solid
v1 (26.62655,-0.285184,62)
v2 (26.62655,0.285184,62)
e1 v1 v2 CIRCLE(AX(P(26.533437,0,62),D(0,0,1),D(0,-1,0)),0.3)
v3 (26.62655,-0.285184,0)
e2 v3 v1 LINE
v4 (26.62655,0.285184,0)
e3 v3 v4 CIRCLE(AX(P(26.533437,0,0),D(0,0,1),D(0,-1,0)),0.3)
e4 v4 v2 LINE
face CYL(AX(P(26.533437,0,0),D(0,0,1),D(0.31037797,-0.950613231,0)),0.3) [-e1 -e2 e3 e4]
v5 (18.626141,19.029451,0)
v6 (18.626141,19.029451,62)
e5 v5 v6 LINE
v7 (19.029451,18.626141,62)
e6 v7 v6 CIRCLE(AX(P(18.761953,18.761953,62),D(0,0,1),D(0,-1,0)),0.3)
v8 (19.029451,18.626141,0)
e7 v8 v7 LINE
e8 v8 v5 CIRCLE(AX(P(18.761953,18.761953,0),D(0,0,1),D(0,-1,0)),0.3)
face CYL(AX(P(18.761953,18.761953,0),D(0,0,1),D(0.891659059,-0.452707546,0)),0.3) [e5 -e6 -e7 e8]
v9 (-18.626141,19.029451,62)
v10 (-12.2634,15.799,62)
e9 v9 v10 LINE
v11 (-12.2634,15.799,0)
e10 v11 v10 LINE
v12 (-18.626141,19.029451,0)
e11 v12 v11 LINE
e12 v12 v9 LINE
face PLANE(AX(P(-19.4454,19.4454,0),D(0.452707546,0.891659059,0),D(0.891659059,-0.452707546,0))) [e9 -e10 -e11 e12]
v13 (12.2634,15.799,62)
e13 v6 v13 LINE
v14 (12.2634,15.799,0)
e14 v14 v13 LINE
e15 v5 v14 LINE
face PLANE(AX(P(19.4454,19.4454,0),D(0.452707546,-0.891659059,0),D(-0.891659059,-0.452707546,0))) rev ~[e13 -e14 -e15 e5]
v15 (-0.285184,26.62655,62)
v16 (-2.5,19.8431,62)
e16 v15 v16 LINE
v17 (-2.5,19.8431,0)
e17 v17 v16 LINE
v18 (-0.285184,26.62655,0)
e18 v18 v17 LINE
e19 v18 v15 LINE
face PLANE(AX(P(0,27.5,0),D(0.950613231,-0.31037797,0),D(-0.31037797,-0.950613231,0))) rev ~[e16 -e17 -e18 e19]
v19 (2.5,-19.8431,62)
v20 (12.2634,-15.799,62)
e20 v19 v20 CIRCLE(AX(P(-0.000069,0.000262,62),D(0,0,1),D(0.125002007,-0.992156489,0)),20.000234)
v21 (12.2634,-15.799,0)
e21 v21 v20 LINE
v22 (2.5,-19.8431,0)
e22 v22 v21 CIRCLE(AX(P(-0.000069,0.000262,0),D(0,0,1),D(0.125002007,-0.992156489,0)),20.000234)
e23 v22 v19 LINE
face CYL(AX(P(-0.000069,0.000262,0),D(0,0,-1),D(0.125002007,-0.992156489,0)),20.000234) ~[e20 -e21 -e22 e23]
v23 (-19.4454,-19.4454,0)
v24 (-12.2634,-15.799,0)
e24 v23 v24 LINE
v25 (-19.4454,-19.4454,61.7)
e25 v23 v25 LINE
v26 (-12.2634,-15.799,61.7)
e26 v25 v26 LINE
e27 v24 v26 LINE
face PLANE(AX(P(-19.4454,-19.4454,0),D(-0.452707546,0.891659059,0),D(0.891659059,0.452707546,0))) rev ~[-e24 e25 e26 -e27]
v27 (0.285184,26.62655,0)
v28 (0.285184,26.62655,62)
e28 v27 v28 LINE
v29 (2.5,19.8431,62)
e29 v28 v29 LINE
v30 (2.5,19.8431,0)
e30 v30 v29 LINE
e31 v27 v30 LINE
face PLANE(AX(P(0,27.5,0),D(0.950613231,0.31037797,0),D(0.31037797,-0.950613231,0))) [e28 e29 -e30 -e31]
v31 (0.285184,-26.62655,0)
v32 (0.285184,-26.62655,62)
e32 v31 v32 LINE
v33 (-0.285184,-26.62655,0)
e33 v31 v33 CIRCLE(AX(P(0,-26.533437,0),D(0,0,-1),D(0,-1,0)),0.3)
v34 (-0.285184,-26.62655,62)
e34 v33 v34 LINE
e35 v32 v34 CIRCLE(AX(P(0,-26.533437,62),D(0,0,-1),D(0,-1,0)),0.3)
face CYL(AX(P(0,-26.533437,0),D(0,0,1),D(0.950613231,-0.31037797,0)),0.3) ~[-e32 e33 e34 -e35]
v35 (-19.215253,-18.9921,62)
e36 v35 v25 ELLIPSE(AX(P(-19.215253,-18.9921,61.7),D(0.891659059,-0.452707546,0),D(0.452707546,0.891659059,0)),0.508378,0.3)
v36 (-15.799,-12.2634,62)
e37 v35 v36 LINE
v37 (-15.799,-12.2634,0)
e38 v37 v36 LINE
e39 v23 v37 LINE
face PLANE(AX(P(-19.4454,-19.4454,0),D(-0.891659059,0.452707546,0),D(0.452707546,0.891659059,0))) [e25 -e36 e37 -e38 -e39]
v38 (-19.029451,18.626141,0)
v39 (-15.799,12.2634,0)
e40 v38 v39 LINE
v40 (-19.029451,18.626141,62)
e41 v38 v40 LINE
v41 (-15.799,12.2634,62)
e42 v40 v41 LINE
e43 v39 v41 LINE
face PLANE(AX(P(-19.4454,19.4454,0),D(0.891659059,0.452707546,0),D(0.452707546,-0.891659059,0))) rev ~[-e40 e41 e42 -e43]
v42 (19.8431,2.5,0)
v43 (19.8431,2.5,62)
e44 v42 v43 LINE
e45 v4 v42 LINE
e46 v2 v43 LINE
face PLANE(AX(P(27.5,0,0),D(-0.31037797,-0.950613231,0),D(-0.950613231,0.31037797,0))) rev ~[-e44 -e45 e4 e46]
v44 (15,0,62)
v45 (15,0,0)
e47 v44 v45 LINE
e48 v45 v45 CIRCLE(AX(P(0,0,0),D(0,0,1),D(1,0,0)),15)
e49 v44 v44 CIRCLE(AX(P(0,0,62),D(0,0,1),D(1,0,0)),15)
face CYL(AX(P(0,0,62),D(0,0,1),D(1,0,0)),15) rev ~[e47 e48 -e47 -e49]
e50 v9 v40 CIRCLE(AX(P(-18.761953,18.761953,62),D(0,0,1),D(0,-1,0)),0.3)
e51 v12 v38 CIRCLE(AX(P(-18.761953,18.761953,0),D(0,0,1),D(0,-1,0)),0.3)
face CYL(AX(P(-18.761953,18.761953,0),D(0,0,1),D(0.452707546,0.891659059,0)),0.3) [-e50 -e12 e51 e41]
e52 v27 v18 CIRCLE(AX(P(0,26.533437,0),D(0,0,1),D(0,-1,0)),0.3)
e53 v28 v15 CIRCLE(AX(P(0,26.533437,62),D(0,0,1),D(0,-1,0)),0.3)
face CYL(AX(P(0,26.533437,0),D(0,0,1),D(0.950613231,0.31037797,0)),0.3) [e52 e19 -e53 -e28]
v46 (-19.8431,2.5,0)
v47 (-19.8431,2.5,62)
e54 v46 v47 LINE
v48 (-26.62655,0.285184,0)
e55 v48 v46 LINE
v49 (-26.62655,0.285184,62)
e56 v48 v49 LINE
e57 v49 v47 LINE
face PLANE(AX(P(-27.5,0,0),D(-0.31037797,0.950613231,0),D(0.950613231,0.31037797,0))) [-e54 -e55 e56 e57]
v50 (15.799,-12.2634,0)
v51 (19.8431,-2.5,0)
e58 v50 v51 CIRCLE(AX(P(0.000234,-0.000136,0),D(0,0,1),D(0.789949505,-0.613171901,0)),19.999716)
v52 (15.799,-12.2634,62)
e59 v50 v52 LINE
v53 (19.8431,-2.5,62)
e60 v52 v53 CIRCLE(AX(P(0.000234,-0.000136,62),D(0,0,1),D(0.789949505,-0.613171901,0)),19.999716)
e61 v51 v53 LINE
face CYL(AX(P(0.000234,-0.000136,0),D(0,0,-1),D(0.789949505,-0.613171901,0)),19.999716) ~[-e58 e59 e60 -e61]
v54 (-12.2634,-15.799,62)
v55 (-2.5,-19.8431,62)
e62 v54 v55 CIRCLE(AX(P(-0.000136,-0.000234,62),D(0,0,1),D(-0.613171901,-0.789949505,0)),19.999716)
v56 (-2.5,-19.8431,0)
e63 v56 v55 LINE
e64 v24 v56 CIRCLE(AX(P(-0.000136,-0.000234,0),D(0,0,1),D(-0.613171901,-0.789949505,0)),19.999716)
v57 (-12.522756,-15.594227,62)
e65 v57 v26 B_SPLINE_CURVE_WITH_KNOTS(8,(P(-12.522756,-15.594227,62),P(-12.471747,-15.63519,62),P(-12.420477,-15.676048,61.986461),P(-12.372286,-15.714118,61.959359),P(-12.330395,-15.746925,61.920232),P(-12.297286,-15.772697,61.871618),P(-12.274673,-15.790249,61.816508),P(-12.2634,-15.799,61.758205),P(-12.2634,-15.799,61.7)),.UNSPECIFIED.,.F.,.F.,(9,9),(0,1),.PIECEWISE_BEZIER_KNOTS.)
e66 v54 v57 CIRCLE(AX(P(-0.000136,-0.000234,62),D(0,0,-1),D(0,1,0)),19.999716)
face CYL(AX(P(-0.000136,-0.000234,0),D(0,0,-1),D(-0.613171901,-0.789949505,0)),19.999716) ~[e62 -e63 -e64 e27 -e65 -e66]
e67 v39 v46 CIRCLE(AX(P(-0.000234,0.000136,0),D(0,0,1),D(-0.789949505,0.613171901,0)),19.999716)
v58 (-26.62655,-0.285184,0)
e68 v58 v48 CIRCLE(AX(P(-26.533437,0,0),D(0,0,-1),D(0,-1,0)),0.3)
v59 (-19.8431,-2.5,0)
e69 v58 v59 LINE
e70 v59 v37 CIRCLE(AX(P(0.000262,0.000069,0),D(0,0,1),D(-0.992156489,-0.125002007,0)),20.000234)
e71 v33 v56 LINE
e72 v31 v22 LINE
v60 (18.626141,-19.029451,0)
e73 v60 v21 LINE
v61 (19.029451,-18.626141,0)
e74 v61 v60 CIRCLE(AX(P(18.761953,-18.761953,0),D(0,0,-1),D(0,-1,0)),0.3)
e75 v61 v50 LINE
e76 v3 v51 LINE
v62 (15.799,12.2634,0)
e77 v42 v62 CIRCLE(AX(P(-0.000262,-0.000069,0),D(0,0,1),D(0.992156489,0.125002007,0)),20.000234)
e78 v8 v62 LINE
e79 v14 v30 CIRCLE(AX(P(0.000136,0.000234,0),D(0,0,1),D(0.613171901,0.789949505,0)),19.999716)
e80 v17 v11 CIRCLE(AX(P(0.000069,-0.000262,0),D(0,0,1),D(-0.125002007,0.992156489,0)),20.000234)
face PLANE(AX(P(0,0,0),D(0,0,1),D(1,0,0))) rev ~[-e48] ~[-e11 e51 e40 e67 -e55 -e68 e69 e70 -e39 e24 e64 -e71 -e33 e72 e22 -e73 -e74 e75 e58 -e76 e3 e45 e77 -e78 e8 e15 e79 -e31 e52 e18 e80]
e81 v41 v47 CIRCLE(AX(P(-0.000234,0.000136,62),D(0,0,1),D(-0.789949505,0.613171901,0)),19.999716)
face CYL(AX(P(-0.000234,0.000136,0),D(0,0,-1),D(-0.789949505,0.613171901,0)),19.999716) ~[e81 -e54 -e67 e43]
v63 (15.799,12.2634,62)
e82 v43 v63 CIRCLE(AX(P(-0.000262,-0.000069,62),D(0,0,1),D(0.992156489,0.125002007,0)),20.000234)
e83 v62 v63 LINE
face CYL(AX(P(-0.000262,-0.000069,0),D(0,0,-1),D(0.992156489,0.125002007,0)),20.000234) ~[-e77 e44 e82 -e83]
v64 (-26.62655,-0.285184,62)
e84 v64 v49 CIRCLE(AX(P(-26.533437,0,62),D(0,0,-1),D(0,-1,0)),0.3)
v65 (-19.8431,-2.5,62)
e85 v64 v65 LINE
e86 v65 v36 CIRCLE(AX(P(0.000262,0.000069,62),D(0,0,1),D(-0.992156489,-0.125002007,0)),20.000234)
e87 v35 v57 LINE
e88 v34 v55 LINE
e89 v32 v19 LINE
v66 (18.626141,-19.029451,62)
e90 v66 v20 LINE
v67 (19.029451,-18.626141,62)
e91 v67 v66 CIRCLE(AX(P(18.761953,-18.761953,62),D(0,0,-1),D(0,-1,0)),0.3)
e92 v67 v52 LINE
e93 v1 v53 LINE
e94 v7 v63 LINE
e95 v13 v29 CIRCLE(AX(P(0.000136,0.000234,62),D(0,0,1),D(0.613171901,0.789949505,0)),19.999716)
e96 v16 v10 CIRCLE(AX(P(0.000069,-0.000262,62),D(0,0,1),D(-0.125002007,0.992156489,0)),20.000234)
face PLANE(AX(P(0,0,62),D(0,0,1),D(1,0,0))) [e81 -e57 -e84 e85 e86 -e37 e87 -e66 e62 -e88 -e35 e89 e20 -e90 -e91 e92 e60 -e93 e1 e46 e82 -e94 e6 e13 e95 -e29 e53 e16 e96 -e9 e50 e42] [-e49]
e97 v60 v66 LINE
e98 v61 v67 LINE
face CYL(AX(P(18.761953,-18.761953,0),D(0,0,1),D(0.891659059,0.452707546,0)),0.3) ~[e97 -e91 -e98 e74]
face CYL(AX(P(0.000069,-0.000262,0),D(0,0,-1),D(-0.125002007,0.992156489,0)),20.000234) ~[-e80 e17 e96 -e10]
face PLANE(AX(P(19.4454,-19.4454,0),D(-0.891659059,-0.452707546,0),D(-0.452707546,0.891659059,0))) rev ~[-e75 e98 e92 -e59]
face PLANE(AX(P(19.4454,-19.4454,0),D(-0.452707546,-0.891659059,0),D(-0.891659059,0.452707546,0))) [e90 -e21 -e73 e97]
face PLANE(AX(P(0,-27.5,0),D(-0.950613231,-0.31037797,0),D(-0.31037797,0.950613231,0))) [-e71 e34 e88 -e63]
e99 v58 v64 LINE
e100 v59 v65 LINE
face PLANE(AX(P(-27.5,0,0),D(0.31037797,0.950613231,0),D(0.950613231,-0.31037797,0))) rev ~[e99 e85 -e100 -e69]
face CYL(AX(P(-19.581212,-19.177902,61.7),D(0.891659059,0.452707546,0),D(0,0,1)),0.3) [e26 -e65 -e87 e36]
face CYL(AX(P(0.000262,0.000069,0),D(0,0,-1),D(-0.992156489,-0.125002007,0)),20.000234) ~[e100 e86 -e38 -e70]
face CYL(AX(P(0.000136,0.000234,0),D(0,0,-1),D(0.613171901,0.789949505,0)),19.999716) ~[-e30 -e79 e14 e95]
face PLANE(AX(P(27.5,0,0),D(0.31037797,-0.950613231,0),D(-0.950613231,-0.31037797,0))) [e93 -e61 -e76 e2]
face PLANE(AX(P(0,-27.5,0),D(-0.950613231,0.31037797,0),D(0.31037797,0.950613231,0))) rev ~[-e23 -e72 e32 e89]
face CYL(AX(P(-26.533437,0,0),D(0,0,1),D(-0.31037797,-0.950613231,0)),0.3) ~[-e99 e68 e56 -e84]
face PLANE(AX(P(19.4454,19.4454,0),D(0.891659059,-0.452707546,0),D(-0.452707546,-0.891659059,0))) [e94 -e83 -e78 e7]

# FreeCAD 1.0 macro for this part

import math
import FreeCAD as App
import Part
import Sketcher

V = App.Vector


def edges_at(feature, points):
    """Names of the edges that pass closest to the given points."""
    edges = feature.Shape.Edges
    near = lambda p: min(range(len(edges)), key=lambda i: edges[i].distToShape(Part.Vertex(*p))[0])
    return sorted({f"Edge{near(p) + 1}" for p in points})

doc = App.newDocument("Part")
params = doc.addObject("Spreadsheet::Sheet", "Params")
for row, (alias, value) in enumerate([
    ("sketch1_radius", "20 mm"),
    ("pad1_length", "62 mm"),
    ("sketch2_diameter", "30 mm"),
    ("fillet_radius", "0.3 mm"),
], start=1):
    params.set(f"A{row}", alias)
    params.set(f"B{row}", "=" + value)
    params.setAlias(f"B{row}", alias)

body = doc.addObject("PartDesign::Body", "Body")

# Sketch on XY plane
sketch1 = body.newObject("Sketcher::SketchObject", "Sketch")
sketch1.AttachmentSupport = (doc.getObject("XY_Plane"), [""])
sketch1.MapMode = "FlatFace"
sketch1.addGeometry(Part.LineSegment(V(19.8431, -2.5, 0), V(27.5, 0, 0)), False)
sketch1.addGeometry(Part.LineSegment(V(27.5, 0, 0), V(19.8431, 2.5, 0)), False)
sketch1.addGeometry(Part.ArcOfCircle(Part.Circle(V(0, 0, 0), V(0, 0, 1), 19.999985), math.radians(7.180768), math.radians(37.819104)), False)
sketch1.addGeometry(Part.LineSegment(V(15.799, 12.2634, 0), V(19.4454, 19.4454, 0)), False)
sketch1.addGeometry(Part.LineSegment(V(19.4454, 19.4454, 0), V(12.2634, 15.799, 0)), False)
sketch1.addGeometry(Part.ArcOfCircle(Part.Circle(V(0, 0, 0), V(0, 0, 1), 19.999965), math.radians(52.180896), math.radians(82.819232)), False)
sketch1.addGeometry(Part.LineSegment(V(2.5, 19.8431, 0), V(0, 27.5, 0)), False)
sketch1.addGeometry(Part.LineSegment(V(0, 27.5, 0), V(-2.5, 19.8431, 0)), False)
sketch1.addGeometry(Part.ArcOfCircle(Part.Circle(V(0, 0, 0), V(0, 0, 1), 19.999985), math.radians(97.180768), math.radians(127.819104)), False)
sketch1.addGeometry(Part.LineSegment(V(-12.2634, 15.799, 0), V(-19.4454, 19.4454, 0)), False)
sketch1.addGeometry(Part.LineSegment(V(-19.4454, 19.4454, 0), V(-15.799, 12.2634, 0)), False)
sketch1.addGeometry(Part.ArcOfCircle(Part.Circle(V(0, 0, 0), V(0, 0, 1), 19.999965), math.radians(142.180896), math.radians(172.819232)), False)
sketch1.addGeometry(Part.LineSegment(V(-19.8431, 2.5, 0), V(-27.5, 0, 0)), False)
sketch1.addGeometry(Part.LineSegment(V(-27.5, 0, 0), V(-19.8431, -2.5, 0)), False)
sketch1.addGeometry(Part.ArcOfCircle(Part.Circle(V(0, 0, 0), V(0, 0, 1), 19.999985), math.radians(-172.819232), math.radians(-142.180896)), False)
sketch1.addGeometry(Part.LineSegment(V(-15.799, -12.2634, 0), V(-19.4454, -19.4454, 0)), False)
sketch1.addGeometry(Part.LineSegment(V(-19.4454, -19.4454, 0), V(-12.2634, -15.799, 0)), False)
sketch1.addGeometry(Part.ArcOfCircle(Part.Circle(V(0, 0, 0), V(0, 0, 1), 19.999965), math.radians(-127.819104), math.radians(-97.180768)), False)
sketch1.addGeometry(Part.LineSegment(V(-2.5, -19.8431, 0), V(0, -27.5, 0)), False)
sketch1.addGeometry(Part.LineSegment(V(0, -27.5, 0), V(2.5, -19.8431, 0)), False)
sketch1.addGeometry(Part.ArcOfCircle(Part.Circle(V(0, 0, 0), V(0, 0, 1), 19.999985), math.radians(-82.819232), math.radians(-52.180896)), False)
sketch1.addGeometry(Part.LineSegment(V(12.2634, -15.799, 0), V(19.4454, -19.4454, 0)), False)
sketch1.addGeometry(Part.LineSegment(V(19.4454, -19.4454, 0), V(15.799, -12.2634, 0)), False)
sketch1.addGeometry(Part.ArcOfCircle(Part.Circle(V(0, 0, 0), V(0, 0, 1), 19.999965), math.radians(-37.819104), math.radians(-7.180768)), False)
sketch1.addConstraint(Sketcher.Constraint("Coincident", 0, 2, 1, 1))
sketch1.addConstraint(Sketcher.Constraint("Coincident", 1, 2, 2, 1))
sketch1.addConstraint(Sketcher.Constraint("Coincident", 2, 2, 3, 1))
sketch1.addConstraint(Sketcher.Constraint("Coincident", 3, 2, 4, 1))
sketch1.addConstraint(Sketcher.Constraint("Coincident", 4, 2, 5, 1))
sketch1.addConstraint(Sketcher.Constraint("Coincident", 5, 2, 6, 1))
sketch1.addConstraint(Sketcher.Constraint("Coincident", 6, 2, 7, 1))
sketch1.addConstraint(Sketcher.Constraint("Coincident", 7, 2, 8, 1))
sketch1.addConstraint(Sketcher.Constraint("Coincident", 8, 2, 9, 1))
sketch1.addConstraint(Sketcher.Constraint("Coincident", 9, 2, 10, 1))
sketch1.addConstraint(Sketcher.Constraint("Coincident", 10, 2, 11, 1))
sketch1.addConstraint(Sketcher.Constraint("Coincident", 11, 2, 12, 1))
sketch1.addConstraint(Sketcher.Constraint("Coincident", 12, 2, 13, 1))
sketch1.addConstraint(Sketcher.Constraint("Coincident", 13, 2, 14, 1))
sketch1.addConstraint(Sketcher.Constraint("Coincident", 14, 2, 15, 1))
sketch1.addConstraint(Sketcher.Constraint("Coincident", 15, 2, 16, 1))
sketch1.addConstraint(Sketcher.Constraint("Coincident", 16, 2, 17, 1))
sketch1.addConstraint(Sketcher.Constraint("Coincident", 17, 2, 18, 1))
sketch1.addConstraint(Sketcher.Constraint("Coincident", 18, 2, 19, 1))
sketch1.addConstraint(Sketcher.Constraint("Coincident", 19, 2, 20, 1))
sketch1.addConstraint(Sketcher.Constraint("Coincident", 20, 2, 21, 1))
sketch1.addConstraint(Sketcher.Constraint("Coincident", 21, 2, 22, 1))
sketch1.addConstraint(Sketcher.Constraint("Coincident", 22, 2, 23, 1))
sketch1.addConstraint(Sketcher.Constraint("Coincident", 23, 2, 0, 1))
sketch1.addConstraint(Sketcher.Constraint("Coincident", 2, 3, -1, 1))
sketch1.addConstraint(Sketcher.Constraint("Coincident", 5, 3, -1, 1))
sketch1.addConstraint(Sketcher.Constraint("Coincident", 8, 3, -1, 1))
sketch1.addConstraint(Sketcher.Constraint("Coincident", 11, 3, -1, 1))
sketch1.addConstraint(Sketcher.Constraint("Coincident", 14, 3, -1, 1))
sketch1.addConstraint(Sketcher.Constraint("Coincident", 17, 3, -1, 1))
sketch1.addConstraint(Sketcher.Constraint("Coincident", 20, 3, -1, 1))
sketch1.addConstraint(Sketcher.Constraint("Coincident", 23, 3, -1, 1))
sketch1.addConstraint(Sketcher.Constraint("Equal", 2, 5))
sketch1.addConstraint(Sketcher.Constraint("Equal", 5, 8))
sketch1.addConstraint(Sketcher.Constraint("Equal", 8, 11))
sketch1.addConstraint(Sketcher.Constraint("Equal", 11, 14))
sketch1.addConstraint(Sketcher.Constraint("Equal", 14, 17))
sketch1.addConstraint(Sketcher.Constraint("Equal", 17, 20))
sketch1.addConstraint(Sketcher.Constraint("Equal", 20, 23))
sketch1.addConstraint(Sketcher.Constraint("Symmetric", 0, 2, 12, 2, -1, 1))
sketch1.addConstraint(Sketcher.Constraint("Symmetric", 3, 2, 15, 2, -1, 1))
sketch1.addConstraint(Sketcher.Constraint("Symmetric", 6, 2, 18, 2, -1, 1))
sketch1.addConstraint(Sketcher.Constraint("Symmetric", 9, 2, 21, 2, -1, 1))
sketch1.addConstraint(Sketcher.Constraint("Symmetric", 3, 2, 9, 2, -2))
sketch1.addConstraint(Sketcher.Constraint("PointOnObject", 0, 2, -1))
sketch1.addConstraint(Sketcher.Constraint("PointOnObject", 6, 2, -2))
sketch1.addConstraint(Sketcher.Constraint("Perpendicular", 0, 6))
sketch1.addConstraint(Sketcher.Constraint("Perpendicular", 1, 7))
sketch1.addConstraint(Sketcher.Constraint("Perpendicular", 3, 9))
sketch1.addConstraint(Sketcher.Constraint("Perpendicular", 4, 10))
sketch1.addConstraint(Sketcher.Constraint("Perpendicular", 6, 12))
sketch1.addConstraint(Sketcher.Constraint("Perpendicular", 7, 13))
sketch1.addConstraint(Sketcher.Constraint("Perpendicular", 9, 15))
sketch1.addConstraint(Sketcher.Constraint("Perpendicular", 10, 16))
sketch1.addConstraint(Sketcher.Constraint("Perpendicular", 12, 18))
sketch1.addConstraint(Sketcher.Constraint("Perpendicular", 13, 19))
sketch1.addConstraint(Sketcher.Constraint("Perpendicular", 15, 21))
sketch1.addConstraint(Sketcher.Constraint("Perpendicular", 16, 22))
sketch1.addConstraint(Sketcher.Constraint("Horizontal", 5, 2, 7, 2))
sketch1.addConstraint(Sketcher.Constraint("Horizontal", 4, 2, 8, 2))
sketch1.addConstraint(Sketcher.Constraint("Equal", 1, 3))
sketch1.addConstraint(Sketcher.Constraint("Equal", 3, 4))
sketch1.addConstraint(Sketcher.Constraint("Equal", 4, 6))
sketch1.addConstraint(Sketcher.Constraint("Radius", 2, 20.0))
sketch1.addConstraint(Sketcher.Constraint("DistanceY", -1, 1, 1, 2, 2.5))
sketch1.addConstraint(Sketcher.Constraint("DistanceX", -1, 1, 0, 2, 27.5))
sketch1.addConstraint(Sketcher.Constraint("DistanceX", -1, 1, 2, 2, 15.799))
sketch1.setExpression("Constraints[63]", "Params.sketch1_radius")
pad1 = body.newObject("PartDesign::Pad", "Pad")
pad1.Profile = sketch1
pad1.setExpression("Length", "Params.pad1_length")

# Sketch on XY plane
sketch2 = body.newObject("Sketcher::SketchObject", "Sketch001")
sketch2.AttachmentSupport = (doc.getObject("XY_Plane"), [""])
sketch2.MapMode = "FlatFace"
sketch2.AttachmentOffset = App.Placement(V(0, 0, 62), App.Rotation())
sketch2.addGeometry(Part.Circle(V(0, 0, 0), V(0, 0, 1), 15), False)
sketch2.addConstraint(Sketcher.Constraint("Coincident", 0, 3, -1, 1))
sketch2.addConstraint(Sketcher.Constraint("Diameter", 0, 30.0))
sketch2.setExpression("Constraints[1]", "Params.sketch2_diameter")
pocket1 = body.newObject("PartDesign::Pocket", "Pocket")
pocket1.Profile = sketch2
pocket1.Type = "ThroughAll"
doc.recompute()

fillet = body.newObject("PartDesign::Fillet", "Fillet")
fillet.Base = (pocket1, edges_at(pocket1, [
    (19.445, 19.445, 31),
    (0, 27.5, 31),
    (27.5, 0, 31),
    (19.445, -19.445, 31),
    (0, -27.5, 31),
    (-15.854, -17.622, 62),
    (-27.5, 0, 31),
    (-19.445, 19.445, 31),
]))
fillet.setExpression("Radius", "Params.fillet_radius")

doc.recompute()
